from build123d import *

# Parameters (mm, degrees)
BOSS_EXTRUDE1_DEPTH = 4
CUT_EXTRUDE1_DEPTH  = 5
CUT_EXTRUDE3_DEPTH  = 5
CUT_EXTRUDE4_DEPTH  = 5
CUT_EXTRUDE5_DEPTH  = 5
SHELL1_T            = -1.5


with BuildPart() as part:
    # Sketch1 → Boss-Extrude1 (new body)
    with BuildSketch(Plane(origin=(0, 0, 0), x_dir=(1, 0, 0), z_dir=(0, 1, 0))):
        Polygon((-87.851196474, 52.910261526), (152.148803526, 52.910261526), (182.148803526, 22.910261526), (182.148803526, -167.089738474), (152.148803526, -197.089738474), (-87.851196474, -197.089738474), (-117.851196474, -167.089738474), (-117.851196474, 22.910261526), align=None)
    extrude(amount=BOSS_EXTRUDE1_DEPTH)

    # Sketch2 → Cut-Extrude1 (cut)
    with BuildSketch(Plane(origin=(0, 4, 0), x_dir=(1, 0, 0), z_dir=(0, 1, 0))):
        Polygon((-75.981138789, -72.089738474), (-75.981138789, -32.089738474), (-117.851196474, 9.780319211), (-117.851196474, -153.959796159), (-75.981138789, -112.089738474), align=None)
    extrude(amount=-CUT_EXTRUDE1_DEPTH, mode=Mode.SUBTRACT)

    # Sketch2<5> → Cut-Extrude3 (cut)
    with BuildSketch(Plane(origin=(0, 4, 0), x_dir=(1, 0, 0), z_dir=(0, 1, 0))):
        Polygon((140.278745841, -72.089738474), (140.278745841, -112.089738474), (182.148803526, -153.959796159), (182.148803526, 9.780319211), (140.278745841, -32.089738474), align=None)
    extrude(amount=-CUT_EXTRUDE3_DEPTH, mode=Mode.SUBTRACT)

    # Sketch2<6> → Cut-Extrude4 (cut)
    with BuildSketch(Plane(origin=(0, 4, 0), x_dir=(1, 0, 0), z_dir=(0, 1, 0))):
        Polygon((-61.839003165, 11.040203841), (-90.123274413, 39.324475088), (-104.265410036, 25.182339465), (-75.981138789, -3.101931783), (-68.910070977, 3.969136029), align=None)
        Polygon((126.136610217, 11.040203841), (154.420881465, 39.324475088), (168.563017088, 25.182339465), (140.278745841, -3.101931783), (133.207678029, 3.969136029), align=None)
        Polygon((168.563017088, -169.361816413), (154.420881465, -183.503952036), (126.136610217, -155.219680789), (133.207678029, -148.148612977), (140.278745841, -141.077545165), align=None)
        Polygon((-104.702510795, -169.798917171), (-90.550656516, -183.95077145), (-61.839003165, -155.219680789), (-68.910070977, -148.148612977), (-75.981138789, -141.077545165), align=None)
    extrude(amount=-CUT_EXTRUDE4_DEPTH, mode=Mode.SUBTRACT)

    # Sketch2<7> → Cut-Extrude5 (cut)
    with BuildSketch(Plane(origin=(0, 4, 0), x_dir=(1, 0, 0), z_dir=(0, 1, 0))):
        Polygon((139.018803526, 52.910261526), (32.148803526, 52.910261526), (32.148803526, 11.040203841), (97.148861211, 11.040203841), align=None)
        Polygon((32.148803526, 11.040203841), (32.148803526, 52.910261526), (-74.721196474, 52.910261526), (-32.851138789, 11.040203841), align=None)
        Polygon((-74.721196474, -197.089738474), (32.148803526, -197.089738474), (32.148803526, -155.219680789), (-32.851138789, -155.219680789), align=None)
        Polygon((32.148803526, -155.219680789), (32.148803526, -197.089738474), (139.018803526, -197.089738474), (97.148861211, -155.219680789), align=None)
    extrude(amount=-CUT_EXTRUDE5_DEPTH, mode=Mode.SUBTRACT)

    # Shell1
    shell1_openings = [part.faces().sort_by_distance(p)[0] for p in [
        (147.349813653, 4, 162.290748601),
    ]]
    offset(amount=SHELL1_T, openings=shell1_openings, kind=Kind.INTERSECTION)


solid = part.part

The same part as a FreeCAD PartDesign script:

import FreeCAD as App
import Part
import Sketcher
from FreeCAD import Vector


def faces_at(feature, points):
    """Names of the faces that lie closest to the given points."""
    faces = feature.Shape.Faces
    near = lambda p: min(range(len(faces)), key=lambda i: faces[i].distToShape(Part.Vertex(*p))[0])
    return sorted({f"Face{near(p) + 1}" for p in points})

doc = App.newDocument("Part")
body = doc.addObject("PartDesign::Body", "Body")

sketch1 = doc.addObject("Sketcher::SketchObject", "Sketch")
body.addObject(sketch1)
sketch1.AttachmentSupport = (doc.XZ_Plane, [""])
sketch1.MapMode = "FlatFace"
sketch1.addGeometry(Part.LineSegment(Vector(152, -53, 0), Vector(-88, -53, 0)), False)
sketch1.addGeometry(Part.LineSegment(Vector(-88, -53, 0), Vector(-118, -23, 0)), False)
sketch1.addGeometry(Part.LineSegment(Vector(-118, -23, 0), Vector(-118, 167, 0)), False)
sketch1.addGeometry(Part.LineSegment(Vector(-118, 167, 0), Vector(-88, 197, 0)), False)
sketch1.addGeometry(Part.LineSegment(Vector(-88, 197, 0), Vector(152, 197, 0)), False)
sketch1.addGeometry(Part.LineSegment(Vector(152, 197, 0), Vector(182, 167, 0)), False)
sketch1.addGeometry(Part.LineSegment(Vector(182, 167, 0), Vector(182, -23, 0)), False)
sketch1.addGeometry(Part.LineSegment(Vector(182, -23, 0), Vector(152, -53, 0)), False)
sketch1.addConstraint(Sketcher.Constraint("Coincident", 0, 2, 1, 1))
sketch1.addConstraint(Sketcher.Constraint("Coincident", 1, 2, 2, 1))
sketch1.addConstraint(Sketcher.Constraint("Coincident", 2, 2, 3, 1))
sketch1.addConstraint(Sketcher.Constraint("Coincident", 3, 2, 4, 1))
sketch1.addConstraint(Sketcher.Constraint("Coincident", 4, 2, 5, 1))
sketch1.addConstraint(Sketcher.Constraint("Coincident", 5, 2, 6, 1))
sketch1.addConstraint(Sketcher.Constraint("Coincident", 6, 2, 7, 1))
sketch1.addConstraint(Sketcher.Constraint("Coincident", 7, 2, 0, 1))
sketch1.addConstraint(Sketcher.Constraint("Horizontal", 0))
sketch1.addConstraint(Sketcher.Constraint("Vertical", 2))
sketch1.addConstraint(Sketcher.Constraint("Horizontal", 4))
sketch1.addConstraint(Sketcher.Constraint("Vertical", 6))
sketch1.addConstraint(Sketcher.Constraint("Perpendicular", 1, 3))
sketch1.addConstraint(Sketcher.Constraint("Perpendicular", 3, 5))
sketch1.addConstraint(Sketcher.Constraint("Perpendicular", 5, 7))
sketch1.addConstraint(Sketcher.Constraint("Horizontal", 2, 2, 5, 2))
sketch1.addConstraint(Sketcher.Constraint("Horizontal", 1, 2, 6, 2))
sketch1.addConstraint(Sketcher.Constraint("Vertical", 0, 2, 3, 2))
sketch1.addConstraint(Sketcher.Constraint("Vertical", 4, 2, 7, 2))
sketch1.addConstraint(Sketcher.Constraint("DistanceX", 0, 2, 0, 1, 240.0))
sketch1.addConstraint(Sketcher.Constraint("DistanceY", 2, 1, 2, 2, 190.0))
sketch1.addConstraint(Sketcher.Constraint("DistanceX", 1, 2, 0, 2, 30.0))
sketch1.addConstraint(Sketcher.Constraint("DistanceY", 0, 2, -1, 1, 52.910262))
sketch1.addConstraint(Sketcher.Constraint("DistanceX", 0, 2, -1, 1, 87.851196))
pad1 = doc.addObject("PartDesign::Pad", "Pad")
body.addObject(pad1)
pad1.Profile = sketch1
pad1.Length = 4
pad1.Reversed = True

sketch2 = doc.addObject("Sketcher::SketchObject", "Sketch001")
body.addObject(sketch2)
sketch2.AttachmentSupport = (doc.XZ_Plane, [""])
sketch2.MapMode = "FlatFace"
sketch2.AttachmentOffset = App.Placement(Vector(0, 0, -4), App.Rotation())
sketch2.addGeometry(Part.LineSegment(Vector(-76, 32, 0), Vector(-118, -10, 0)), False)
sketch2.addGeometry(Part.LineSegment(Vector(-118, -10, 0), Vector(-118, 154, 0)), False)
sketch2.addGeometry(Part.LineSegment(Vector(-118, 154, 0), Vector(-76, 112, 0)), False)
sketch2.addGeometry(Part.LineSegment(Vector(-76, 112, 0), Vector(-76, 32, 0)), False)
sketch2.addConstraint(Sketcher.Constraint("Coincident", 0, 2, 1, 1))
sketch2.addConstraint(Sketcher.Constraint("Coincident", 1, 2, 2, 1))
sketch2.addConstraint(Sketcher.Constraint("Coincident", 2, 2, 3, 1))
sketch2.addConstraint(Sketcher.Constraint("Coincident", 3, 2, 0, 1))
sketch2.addConstraint(Sketcher.Constraint("Vertical", 1))
sketch2.addConstraint(Sketcher.Constraint("Vertical", 3))
sketch2.addConstraint(Sketcher.Constraint("Perpendicular", 0, 2))
sketch2.addConstraint(Sketcher.Constraint("Equal", 0, 2))
sketch2.addConstraint(Sketcher.Constraint("DistanceY", 3, 2, 3, 1, 80.0))
sketch2.addConstraint(Sketcher.Constraint("DistanceY", 1, 1, 1, 2, 163.740115))
sketch2.addConstraint(Sketcher.Constraint("DistanceY", 0, 2, -1, 1, 9.780319))
sketch2.addConstraint(Sketcher.Constraint("DistanceX", 2, 2, -1, 1, 75.981139))
pocket1 = doc.addObject("PartDesign::Pocket", "Pocket")
body.addObject(pocket1)
pocket1.Profile = sketch2
pocket1.Length = 5
pocket1.Reversed = True

sketch3 = doc.addObject("Sketcher::SketchObject", "Sketch002")
body.addObject(sketch3)
sketch3.AttachmentSupport = (doc.XZ_Plane, [""])
sketch3.MapMode = "FlatFace"
sketch3.AttachmentOffset = App.Placement(Vector(0, 0, -4), App.Rotation())
sketch3.addGeometry(Part.LineSegment(Vector(140, 112, 0), Vector(182, 154, 0)), False)
sketch3.addGeometry(Part.LineSegment(Vector(182, 154, 0), Vector(182, -10, 0)), False)
sketch3.addGeometry(Part.LineSegment(Vector(182, -10, 0), Vector(140, 32, 0)), False)
sketch3.addGeometry(Part.LineSegment(Vector(140, 32, 0), Vector(140, 112, 0)), False)
sketch3.addConstraint(Sketcher.Constraint("Coincident", 0, 2, 1, 1))
sketch3.addConstraint(Sketcher.Constraint("Coincident", 1, 2, 2, 1))
sketch3.addConstraint(Sketcher.Constraint("Coincident", 2, 2, 3, 1))
sketch3.addConstraint(Sketcher.Constraint("Coincident", 3, 2, 0, 1))
sketch3.addConstraint(Sketcher.Constraint("Vertical", 1))
sketch3.addConstraint(Sketcher.Constraint("Vertical", 3))
sketch3.addConstraint(Sketcher.Constraint("Perpendicular", 0, 2))
sketch3.addConstraint(Sketcher.Constraint("Equal", 0, 2))
sketch3.addConstraint(Sketcher.Constraint("DistanceY", 3, 1, 3, 2, 80.0))
sketch3.addConstraint(Sketcher.Constraint("DistanceY", 1, 2, 1, 1, 163.740115))
sketch3.addConstraint(Sketcher.Constraint("DistanceY", 1, 2, -1, 1, 9.780319))
sketch3.addConstraint(Sketcher.Constraint("DistanceX", -1, 1, 0, 2, 182.148804))
pocket2 = doc.addObject("PartDesign::Pocket", "Pocket001")
body.addObject(pocket2)
pocket2.Profile = sketch3
pocket2.Length = 5
pocket2.Reversed = True

sketch4 = doc.addObject("Sketcher::SketchObject", "Sketch003")
body.addObject(sketch4)
sketch4.AttachmentSupport = (doc.XZ_Plane, [""])
sketch4.MapMode = "FlatFace"
sketch4.AttachmentOffset = App.Placement(Vector(0, 0, -4), App.Rotation())
sketch4.addGeometry(Part.LineSegment(Vector(-62, -11, 0), Vector(-90, -39, 0)), False)
sketch4.addGeometry(Part.LineSegment(Vector(-90, -39, 0), Vector(-104, -25, 0)), False)
sketch4.addGeometry(Part.LineSegment(Vector(-104, -25, 0), Vector(-76, 3, 0)), False)
sketch4.addGeometry(Part.LineSegment(Vector(-76, 3, 0), Vector(-62, -11, 0)), False)
sketch4.addGeometry(Part.LineSegment(Vector(154, -39, 0), Vector(126, -11, 0)), False)
sketch4.addGeometry(Part.LineSegment(Vector(126, -11, 0), Vector(140, 3, 0)), False)
sketch4.addGeometry(Part.LineSegment(Vector(140, 3, 0), Vector(169, -25, 0)), False)
sketch4.addGeometry(Part.LineSegment(Vector(169, -25, 0), Vector(154, -39, 0)), False)
sketch4.addGeometry(Part.LineSegment(Vector(154, 184, 0), Vector(169, 169, 0)), False)
sketch4.addGeometry(Part.LineSegment(Vector(169, 169, 0), Vector(140, 141, 0)), False)
sketch4.addGeometry(Part.LineSegment(Vector(140, 141, 0), Vector(126, 155, 0)), False)
sketch4.addGeometry(Part.LineSegment(Vector(126, 155, 0), Vector(154, 184, 0)), False)
sketch4.addGeometry(Part.LineSegment(Vector(-105, 170, 0), Vector(-91, 184, 0)), False)
sketch4.addGeometry(Part.LineSegment(Vector(-91, 184, 0), Vector(-62, 155, 0)), False)
sketch4.addGeometry(Part.LineSegment(Vector(-62, 155, 0), Vector(-76, 141, 0)), False)
sketch4.addGeometry(Part.LineSegment(Vector(-76, 141, 0), Vector(-105, 170, 0)), False)
sketch4.addConstraint(Sketcher.Constraint("Coincident", 0, 2, 1, 1))
sketch4.addConstraint(Sketcher.Constraint("Coincident", 1, 2, 2, 1))
sketch4.addConstraint(Sketcher.Constraint("Coincident", 2, 2, 3, 1))
sketch4.addConstraint(Sketcher.Constraint("Coincident", 3, 2, 0, 1))
sketch4.addConstraint(Sketcher.Constraint("Coincident", 4, 2, 5, 1))
sketch4.addConstraint(Sketcher.Constraint("Coincident", 5, 2, 6, 1))
sketch4.addConstraint(Sketcher.Constraint("Coincident", 6, 2, 7, 1))
sketch4.addConstraint(Sketcher.Constraint("Coincident", 7, 2, 4, 1))
sketch4.addConstraint(Sketcher.Constraint("Coincident", 8, 2, 9, 1))
sketch4.addConstraint(Sketcher.Constraint("Coincident", 9, 2, 10, 1))
sketch4.addConstraint(Sketcher.Constraint("Coincident", 10, 2, 11, 1))
sketch4.addConstraint(Sketcher.Constraint("Coincident", 11, 2, 8, 1))
sketch4.addConstraint(Sketcher.Constraint("Coincident", 12, 2, 13, 1))
sketch4.addConstraint(Sketcher.Constraint("Coincident", 13, 2, 14, 1))
sketch4.addConstraint(Sketcher.Constraint("Coincident", 14, 2, 15, 1))
sketch4.addConstraint(Sketcher.Constraint("Coincident", 15, 2, 12, 1))
sketch4.addConstraint(Sketcher.Constraint("Perpendicular", 0, 1))
sketch4.addConstraint(Sketcher.Constraint("Perpendicular", 1, 2))
sketch4.addConstraint(Sketcher.Constraint("Perpendicular", 2, 3))
sketch4.addConstraint(Sketcher.Constraint("Parallel", 3, 4))
sketch4.addConstraint(Sketcher.Constraint("Perpendicular", 4, 5))
sketch4.addConstraint(Sketcher.Constraint("Perpendicular", 5, 6))
sketch4.addConstraint(Sketcher.Constraint("Perpendicular", 6, 7))
sketch4.addConstraint(Sketcher.Constraint("Perpendicular", 7, 8))
sketch4.addConstraint(Sketcher.Constraint("Perpendicular", 8, 9))
sketch4.addConstraint(Sketcher.Constraint("Perpendicular", 9, 10))
sketch4.addConstraint(Sketcher.Constraint("Perpendicular", 10, 11))
sketch4.addConstraint(Sketcher.Constraint("Parallel", 11, 12))
sketch4.addConstraint(Sketcher.Constraint("Parallel", 12, 14))
sketch4.addConstraint(Sketcher.Constraint("Perpendicular", 14, 15))
sketch4.addConstraint(Sketcher.Constraint("Horizontal", 3, 2, 4, 2))
sketch4.addConstraint(Sketcher.Constraint("Horizontal", 2, 2, 5, 2))
sketch4.addConstraint(Sketcher.Constraint("Horizontal", 1, 2, 6, 2))
sketch4.addConstraint(Sketcher.Constraint("Horizontal", 10, 2, 13, 2))
sketch4.addConstraint(Sketcher.Constraint("Horizontal", 9, 2, 14, 2))
sketch4.addConstraint(Sketcher.Constraint("Vertical", 6, 2, 8, 2))
sketch4.addConstraint(Sketcher.Constraint("Vertical", 5, 2, 9, 2))
sketch4.addConstraint(Sketcher.Constraint("Vertical", 4, 2, 10, 2))
sketch4.addConstraint(Sketcher.Constraint("Vertical", 3, 2, 13, 2))
sketch4.addConstraint(Sketcher.Constraint("Vertical", 2, 2, 14, 2))
sketch4.addConstraint(Sketcher.Constraint("Distance", 0, 40.0))
sketch4.addConstraint(Sketcher.Constraint("Distance", 1, 20.0))
sketch4.addConstraint(Sketcher.Constraint("DistanceX", 1, 2, -1, 1, 104.26541))
sketch4.addConstraint(Sketcher.Constraint("DistanceY", 1, 2, -1, 1, 25.182339))
sketch4.addConstraint(Sketcher.Constraint("DistanceX", -1, 1, 4, 2, 126.13661))
sketch4.addConstraint(Sketcher.Constraint("DistanceY", -1, 1, 10, 2, 155.219681))
sketch4.addConstraint(Sketcher.Constraint("DistanceY", -1, 1, 12, 2, 183.950771))
sketch4.addConstraint(Sketcher.Constraint("DistanceX", 15, 2, -1, 1, 104.702511))
pocket3 = doc.addObject("PartDesign::Pocket", "Pocket002")
body.addObject(pocket3)
pocket3.Profile = sketch4
pocket3.Length = 5
pocket3.Reversed = True

sketch5 = doc.addObject("Sketcher::SketchObject", "Sketch004")
body.addObject(sketch5)
sketch5.AttachmentSupport = (doc.XZ_Plane, [""])
sketch5.MapMode = "FlatFace"
sketch5.AttachmentOffset = App.Placement(Vector(0, 0, -4), App.Rotation())
sketch5.addGeometry(Part.LineSegment(Vector(139.018804, -52.910262, 0), Vector(-74.721196, -52.910262, 0)), False)
sketch5.addGeometry(Part.LineSegment(Vector(-74.721196, -52.910262, 0), Vector(-32.851139, -11.040204, 0)), False)
sketch5.addGeometry(Part.LineSegment(Vector(-32.851139, -11.040204, 0), Vector(97.148861, -11.040204, 0)), False)
sketch5.addGeometry(Part.LineSegment(Vector(97.148861, -11.040204, 0), Vector(139.018804, -52.910262, 0)), False)
sketch5.addGeometry(Part.LineSegment(Vector(-74.721196, 197.089738, 0), Vector(139.018804, 197.089738, 0)), False)
sketch5.addGeometry(Part.LineSegment(Vector(139.018804, 197.089738, 0), Vector(97.148861, 155.219681, 0)), False)
sketch5.addGeometry(Part.LineSegment(Vector(97.148861, 155.219681, 0), Vector(-32.851139, 155.219681, 0)), False)
sketch5.addGeometry(Part.LineSegment(Vector(-32.851139, 155.219681, 0), Vector(-74.721196, 197.089738, 0)), False)
sketch5.addConstraint(Sketcher.Constraint("Coincident", 0, 2, 1, 1))
sketch5.addConstraint(Sketcher.Constraint("Coincident", 1, 2, 2, 1))
sketch5.addConstraint(Sketcher.Constraint("Coincident", 2, 2, 3, 1))
sketch5.addConstraint(Sketcher.Constraint("Coincident", 3, 2, 0, 1))
sketch5.addConstraint(Sketcher.Constraint("Coincident", 4, 2, 5, 1))
sketch5.addConstraint(Sketcher.Constraint("Coincident", 5, 2, 6, 1))
sketch5.addConstraint(Sketcher.Constraint("Coincident", 6, 2, 7, 1))
sketch5.addConstraint(Sketcher.Constraint("Coincident", 7, 2, 4, 1))
sketch5.addConstraint(Sketcher.Constraint("Horizontal", 0))
sketch5.addConstraint(Sketcher.Constraint("Horizontal", 2))
sketch5.addConstraint(Sketcher.Constraint("Horizontal", 4))
sketch5.addConstraint(Sketcher.Constraint("Horizontal", 6))
sketch5.addConstraint(Sketcher.Constraint("DistanceX", 2, 1, 2, 2, 130.0))
sketch5.addConstraint(Sketcher.Constraint("DistanceX", 6, 2, 6, 1, 130.0))
sketch5.addConstraint(Sketcher.Constraint("DistanceY", 3, 2, 4, 2, 250.0))
sketch5.addConstraint(Sketcher.Constraint("DistanceX", 1, 2, 5, 2, 130.0))
sketch5.addConstraint(Sketcher.Constraint("DistanceX", 0, 2, 0, 1, 213.74))
sketch5.addConstraint(Sketcher.Constraint("DistanceX", 4, 1, 4, 2, 213.74))
sketch5.addConstraint(Sketcher.Constraint("DistanceX", 0, 2, 4, 2, 213.74))
sketch5.addConstraint(Sketcher.Constraint("Distance", 3, 59.213122))
sketch5.addConstraint(Sketcher.Constraint("Distance", 5, 59.213122))
sketch5.addConstraint(Sketcher.Constraint("DistanceY", 0, 2, -1, 1, 52.910262))
sketch5.addConstraint(Sketcher.Constraint("DistanceX", 1, 2, -1, 1, 32.851139))
sketch5.addConstraint(Sketcher.Constraint("DistanceY", -1, 1, 5, 2, 155.219681))
pocket4 = doc.addObject("PartDesign::Pocket", "Pocket003")
body.addObject(pocket4)
pocket4.Profile = sketch5
pocket4.Length = 5
pocket4.Reversed = True
doc.recompute()

thickness = doc.addObject("PartDesign::Thickness", "Thickness")
body.addObject(thickness)
thickness.Base = (pocket4, faces_at(pocket4, [(32.149, 4, 72.09)]))
thickness.Value = 1.5
thickness.Reversed = True
thickness.Join = "Intersection"

doc.recompute()
